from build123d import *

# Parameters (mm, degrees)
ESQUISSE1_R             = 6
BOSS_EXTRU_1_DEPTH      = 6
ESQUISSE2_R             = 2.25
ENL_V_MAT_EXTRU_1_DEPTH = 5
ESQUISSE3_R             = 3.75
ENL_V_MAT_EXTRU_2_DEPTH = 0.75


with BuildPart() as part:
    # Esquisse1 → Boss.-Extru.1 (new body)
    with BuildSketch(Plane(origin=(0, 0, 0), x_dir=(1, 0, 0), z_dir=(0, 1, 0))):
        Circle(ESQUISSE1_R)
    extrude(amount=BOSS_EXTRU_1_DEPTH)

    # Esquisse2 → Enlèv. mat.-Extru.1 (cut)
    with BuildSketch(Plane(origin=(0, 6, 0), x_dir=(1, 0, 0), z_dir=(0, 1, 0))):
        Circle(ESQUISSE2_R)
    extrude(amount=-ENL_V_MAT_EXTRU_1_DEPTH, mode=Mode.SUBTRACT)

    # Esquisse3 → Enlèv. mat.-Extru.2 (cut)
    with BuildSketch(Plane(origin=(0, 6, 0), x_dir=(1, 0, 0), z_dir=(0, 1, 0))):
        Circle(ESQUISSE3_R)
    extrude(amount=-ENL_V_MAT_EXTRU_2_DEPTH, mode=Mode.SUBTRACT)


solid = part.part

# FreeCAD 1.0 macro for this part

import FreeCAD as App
import Part
import Sketcher

V = App.Vector

doc = App.newDocument("Part")
body = doc.addObject("PartDesign::Body", "Body")

sketch1 = body.newObject("Sketcher::SketchObject", "Sketch")
sketch1.AttachmentSupport = (doc.getObject("XZ_Plane"), [""])
sketch1.MapMode = "FlatFace"
sketch1.addGeometry(Part.Circle(V(0, 0, 0), V(0, 0, 1), 6), False)
sketch1.addConstraint(Sketcher.Constraint("Coincident", 0, 3, -1, 1))
sketch1.addConstraint(Sketcher.Constraint("Diameter", 0, 12.0))
pad1 = body.newObject("PartDesign::Pad", "Pad")
pad1.Profile = sketch1
pad1.Length = 6
pad1.Reversed = True

sketch2 = body.newObject("Sketcher::SketchObject", "Sketch001")
sketch2.AttachmentSupport = (doc.getObject("XZ_Plane"), [""])
sketch2.MapMode = "FlatFace"
sketch2.AttachmentOffset = App.Placement(V(0, 0, -6), App.Rotation())
sketch2.addGeometry(Part.Circle(V(0, 0, 0), V(0, 0, 1), 2.25), False)
sketch2.addConstraint(Sketcher.Constraint("Coincident", 0, 3, -1, 1))
sketch2.addConstraint(Sketcher.Constraint("Diameter", 0, 4.5))
pocket1 = body.newObject("PartDesign::Pocket", "Pocket")
pocket1.Profile = sketch2
pocket1.Length = 5
pocket1.Reversed = True

sketch3 = body.newObject("Sketcher::SketchObject", "Sketch002")
sketch3.AttachmentSupport = (doc.getObject("XZ_Plane"), [""])
sketch3.MapMode = "FlatFace"
sketch3.AttachmentOffset = App.Placement(V(0, 0, -6), App.Rotation())
sketch3.addGeometry(Part.Circle(V(0, 0, 0), V(0, 0, 1), 3.75), False)
sketch3.addConstraint(Sketcher.Constraint("Coincident", 0, 3, -1, 1))
sketch3.addConstraint(Sketcher.Constraint("Diameter", 0, 7.5))
pocket2 = body.newObject("PartDesign::Pocket", "Pocket001")
pocket2.Profile = sketch3
pocket2.Length = 0.75
pocket2.Reversed = True

doc.recompute()
